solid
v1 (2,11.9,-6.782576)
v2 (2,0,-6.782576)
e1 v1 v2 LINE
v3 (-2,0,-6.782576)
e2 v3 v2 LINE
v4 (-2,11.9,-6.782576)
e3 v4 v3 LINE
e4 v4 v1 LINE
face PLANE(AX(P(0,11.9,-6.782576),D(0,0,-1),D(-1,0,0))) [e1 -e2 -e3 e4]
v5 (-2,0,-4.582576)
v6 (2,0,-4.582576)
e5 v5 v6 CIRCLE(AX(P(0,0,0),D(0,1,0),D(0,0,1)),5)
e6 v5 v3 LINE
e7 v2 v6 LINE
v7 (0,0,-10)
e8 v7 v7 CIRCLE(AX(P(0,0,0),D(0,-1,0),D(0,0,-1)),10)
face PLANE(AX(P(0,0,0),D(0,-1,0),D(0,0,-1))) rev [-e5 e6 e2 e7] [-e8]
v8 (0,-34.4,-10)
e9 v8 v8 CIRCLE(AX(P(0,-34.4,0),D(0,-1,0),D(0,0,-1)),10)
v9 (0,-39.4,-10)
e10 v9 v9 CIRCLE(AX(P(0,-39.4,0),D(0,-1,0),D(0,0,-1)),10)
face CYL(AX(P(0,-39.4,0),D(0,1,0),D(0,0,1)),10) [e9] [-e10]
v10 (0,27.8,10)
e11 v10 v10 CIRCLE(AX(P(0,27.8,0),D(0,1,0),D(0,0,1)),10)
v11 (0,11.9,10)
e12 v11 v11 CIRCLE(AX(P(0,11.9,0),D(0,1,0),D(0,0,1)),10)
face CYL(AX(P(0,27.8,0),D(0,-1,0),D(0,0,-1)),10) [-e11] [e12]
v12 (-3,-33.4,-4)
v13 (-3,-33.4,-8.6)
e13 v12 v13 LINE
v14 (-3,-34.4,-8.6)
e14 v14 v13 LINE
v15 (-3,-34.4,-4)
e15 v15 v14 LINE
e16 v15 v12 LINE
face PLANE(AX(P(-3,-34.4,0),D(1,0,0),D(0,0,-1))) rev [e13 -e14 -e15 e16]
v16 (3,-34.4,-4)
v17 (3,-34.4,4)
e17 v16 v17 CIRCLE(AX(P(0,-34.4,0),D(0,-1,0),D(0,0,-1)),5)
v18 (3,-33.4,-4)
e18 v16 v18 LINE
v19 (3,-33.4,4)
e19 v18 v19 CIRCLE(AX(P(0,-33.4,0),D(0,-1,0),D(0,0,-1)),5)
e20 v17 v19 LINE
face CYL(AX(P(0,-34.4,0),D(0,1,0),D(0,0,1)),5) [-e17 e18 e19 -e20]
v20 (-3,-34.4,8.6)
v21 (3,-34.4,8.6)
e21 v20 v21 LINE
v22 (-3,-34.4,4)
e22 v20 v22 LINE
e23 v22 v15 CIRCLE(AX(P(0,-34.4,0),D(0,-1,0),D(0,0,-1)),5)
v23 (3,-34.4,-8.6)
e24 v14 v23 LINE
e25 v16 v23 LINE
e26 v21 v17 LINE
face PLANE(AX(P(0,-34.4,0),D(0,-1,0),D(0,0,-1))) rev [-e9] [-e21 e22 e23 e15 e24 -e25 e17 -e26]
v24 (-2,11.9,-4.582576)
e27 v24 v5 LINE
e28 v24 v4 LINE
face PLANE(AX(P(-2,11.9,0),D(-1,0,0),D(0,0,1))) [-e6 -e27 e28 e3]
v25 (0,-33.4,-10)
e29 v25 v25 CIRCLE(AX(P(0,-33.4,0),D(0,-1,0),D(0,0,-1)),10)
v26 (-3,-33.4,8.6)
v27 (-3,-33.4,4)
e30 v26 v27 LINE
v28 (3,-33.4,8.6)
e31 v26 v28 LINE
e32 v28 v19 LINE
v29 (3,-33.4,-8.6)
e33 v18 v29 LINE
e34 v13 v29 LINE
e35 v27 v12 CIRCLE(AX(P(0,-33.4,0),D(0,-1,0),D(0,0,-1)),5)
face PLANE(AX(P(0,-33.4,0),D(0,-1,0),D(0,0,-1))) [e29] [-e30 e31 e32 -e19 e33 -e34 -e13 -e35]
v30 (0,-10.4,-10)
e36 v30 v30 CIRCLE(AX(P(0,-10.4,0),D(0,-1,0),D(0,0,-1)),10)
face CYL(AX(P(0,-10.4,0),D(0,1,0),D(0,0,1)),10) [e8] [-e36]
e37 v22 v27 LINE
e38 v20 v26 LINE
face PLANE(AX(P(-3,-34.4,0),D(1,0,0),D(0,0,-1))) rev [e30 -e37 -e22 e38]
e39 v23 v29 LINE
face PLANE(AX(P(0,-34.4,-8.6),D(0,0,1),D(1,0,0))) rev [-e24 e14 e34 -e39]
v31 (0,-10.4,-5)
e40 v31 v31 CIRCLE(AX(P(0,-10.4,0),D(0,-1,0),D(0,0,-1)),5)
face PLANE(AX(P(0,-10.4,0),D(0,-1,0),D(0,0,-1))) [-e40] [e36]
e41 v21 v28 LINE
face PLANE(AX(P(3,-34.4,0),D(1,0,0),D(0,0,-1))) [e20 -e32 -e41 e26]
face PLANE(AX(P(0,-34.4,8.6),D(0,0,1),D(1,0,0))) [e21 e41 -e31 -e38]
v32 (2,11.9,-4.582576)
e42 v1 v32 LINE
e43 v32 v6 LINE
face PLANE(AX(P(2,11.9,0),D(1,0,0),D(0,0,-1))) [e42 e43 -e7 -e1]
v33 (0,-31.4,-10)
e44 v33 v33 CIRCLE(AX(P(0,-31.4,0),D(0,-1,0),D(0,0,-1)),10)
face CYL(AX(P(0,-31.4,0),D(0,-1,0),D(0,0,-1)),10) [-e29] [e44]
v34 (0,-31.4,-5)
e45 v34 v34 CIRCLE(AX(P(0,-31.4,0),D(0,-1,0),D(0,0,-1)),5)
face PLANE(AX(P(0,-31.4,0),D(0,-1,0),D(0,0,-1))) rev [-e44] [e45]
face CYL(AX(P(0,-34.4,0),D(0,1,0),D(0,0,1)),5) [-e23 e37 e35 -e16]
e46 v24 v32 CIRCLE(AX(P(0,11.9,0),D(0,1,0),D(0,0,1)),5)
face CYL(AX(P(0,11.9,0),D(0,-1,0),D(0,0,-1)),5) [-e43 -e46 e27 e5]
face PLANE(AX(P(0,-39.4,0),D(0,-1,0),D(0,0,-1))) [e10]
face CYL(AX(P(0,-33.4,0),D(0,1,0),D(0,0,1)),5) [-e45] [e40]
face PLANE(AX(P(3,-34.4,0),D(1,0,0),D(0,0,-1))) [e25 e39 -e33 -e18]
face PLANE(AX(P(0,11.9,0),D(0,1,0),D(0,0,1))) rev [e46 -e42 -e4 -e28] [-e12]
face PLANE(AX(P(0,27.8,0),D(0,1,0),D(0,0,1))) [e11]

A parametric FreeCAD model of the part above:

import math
import FreeCAD as App
import Part
import Sketcher

doc = App.newDocument("Part")
params = doc.addObject("Spreadsheet::Sheet", "Params")
for row, (alias, value) in enumerate([
    ("sketch1_radius", "5 mm"),
    ("sketch1_width", "4 mm"),
    ("sketch1_height", "2.2 mm"),
    ("pad1_length", "11.9 mm"),
    ("sketch2_diameter", "20 mm"),
    ("pad2_length", "15.9 mm"),
    ("sketch3_diameter", "20 mm"),
    ("pad3_length", "10.4 mm"),
    ("sketch4_diameter", "10 mm"),
    ("pad4_length", "23 mm"),
    ("sketch5_diameter", "20 mm"),
    ("sketch5_diameter2", "10 mm"),
    ("pad5_length", "2 mm"),
    ("sketch6_radius", "5 mm"),
    ("sketch6_width", "6 mm"),
    ("sketch6_height", "4.6 mm"),
    ("pad6_length", "1 mm"),
    ("sketch7_diameter", "20 mm"),
    ("pad7_length", "5 mm"),
], start=1):
    params.set(f"A{row}", alias)
    params.set(f"B{row}", "=" + value)
    params.setAlias(f"B{row}", alias)

body = doc.addObject("PartDesign::Body", "Body")

# Sketch on XZ plane
sketch1 = body.newObject("Sketcher::SketchObject", "Sketch")
sketch1.AttachmentSupport = (doc.getObject("XZ_Plane"), [""])
sketch1.MapMode = "FlatFace"
sketch1.addGeometry([
    Part.LineSegment(App.Vector(2, -4.582576, 0), App.Vector(2, -6.782576, 0)),
    Part.LineSegment(App.Vector(2, -6.782576, 0), App.Vector(-2, -6.782576, 0)),
    Part.LineSegment(App.Vector(-2, -6.782576, 0), App.Vector(-2, -4.582576, 0)),
    Part.ArcOfCircle(Part.Circle(App.Vector(0, 0, 0), App.Vector(0, 0, 1), 5), math.radians(-66.421822), math.radians(246.421822)),
], False)
sketch1.addConstraint([
    Sketcher.Constraint("Coincident", 0, 2, 1, 1),
    Sketcher.Constraint("Coincident", 1, 2, 2, 1),
    Sketcher.Constraint("Coincident", 2, 2, 3, 2),
    Sketcher.Constraint("Coincident", 3, 1, 0, 1),
    Sketcher.Constraint("Vertical", 0),
    Sketcher.Constraint("Horizontal", 1),
    Sketcher.Constraint("Vertical", 2),
    Sketcher.Constraint("Coincident", 3, 3, -1, 1),
    Sketcher.Constraint("Horizontal", 2, 2, 3, 1),
    Sketcher.Constraint("Radius", 3, 5.0),
    Sketcher.Constraint("DistanceX", 1, 2, 1, 1, 4.0),
    Sketcher.Constraint("DistanceY", 0, 2, 0, 1, 2.2),
])
sketch1.setExpression("Constraints[9]", "Params.sketch1_radius")
sketch1.setExpression("Constraints[10]", "Params.sketch1_width")
sketch1.setExpression("Constraints[11]", "Params.sketch1_height")
pad1 = body.newObject("PartDesign::Pad", "Pad")
pad1.Profile = sketch1
pad1.setExpression("Length", "Params.pad1_length")
pad1.Reversed = True

# Sketch on XZ plane
sketch2 = body.newObject("Sketcher::SketchObject", "Sketch001")
sketch2.AttachmentSupport = (doc.getObject("XZ_Plane"), [""])
sketch2.MapMode = "FlatFace"
sketch2.AttachmentOffset = App.Placement(App.Vector(0, 0, -11.9), App.Rotation())
sketch2.addGeometry(Part.Circle(App.Vector(0, 0, 0), App.Vector(0, 0, 1), 10), False)
sketch2.addConstraint([
    Sketcher.Constraint("Coincident", 0, 3, -1, 1),
    Sketcher.Constraint("Diameter", 0, 20.0),
])
sketch2.setExpression("Constraints[1]", "Params.sketch2_diameter")
pad2 = body.newObject("PartDesign::Pad", "Pad001")
pad2.Profile = sketch2
pad2.setExpression("Length", "Params.pad2_length")
pad2.Reversed = True

# Sketch on XZ plane
sketch3 = body.newObject("Sketcher::SketchObject", "Sketch002")
sketch3.AttachmentSupport = (doc.getObject("XZ_Plane"), [""])
sketch3.MapMode = "FlatFace"
sketch3.AttachmentOffset = App.Placement(App.Vector(0, 0, 10.4), App.Rotation())
sketch3.addGeometry(Part.Circle(App.Vector(0, 0, 0), App.Vector(0, 0, 1), 10), False)
sketch3.addConstraint([
    Sketcher.Constraint("Coincident", 0, 3, -1, 1),
    Sketcher.Constraint("Diameter", 0, 20.0),
])
sketch3.setExpression("Constraints[1]", "Params.sketch3_diameter")
pad3 = body.newObject("PartDesign::Pad", "Pad002")
pad3.Profile = sketch3
pad3.setExpression("Length", "Params.pad3_length")
pad3.Reversed = True

# Sketch on XZ plane
sketch4 = body.newObject("Sketcher::SketchObject", "Sketch003")
sketch4.AttachmentSupport = (doc.getObject("XZ_Plane"), [""])
sketch4.MapMode = "FlatFace"
sketch4.AttachmentOffset = App.Placement(App.Vector(0, 0, 33.4), App.Rotation())
sketch4.addGeometry(Part.Circle(App.Vector(0, 0, 0), App.Vector(0, 0, 1), 5), False)
sketch4.addConstraint([
    Sketcher.Constraint("Coincident", 0, 3, -1, 1),
    Sketcher.Constraint("Diameter", 0, 10.0),
])
sketch4.setExpression("Constraints[1]", "Params.sketch4_diameter")
pad4 = body.newObject("PartDesign::Pad", "Pad003")
pad4.Profile = sketch4
pad4.setExpression("Length", "Params.pad4_length")
pad4.Reversed = True

# Sketch on XZ plane
sketch5 = body.newObject("Sketcher::SketchObject", "Sketch004")
sketch5.AttachmentSupport = (doc.getObject("XZ_Plane"), [""])
sketch5.MapMode = "FlatFace"
sketch5.AttachmentOffset = App.Placement(App.Vector(0, 0, 33.4), App.Rotation())
sketch5.addGeometry([
    Part.Circle(App.Vector(0, 0, 0), App.Vector(0, 0, 1), 10),
    Part.Circle(App.Vector(0, 0, 0), App.Vector(0, 0, 1), 5),
], False)
sketch5.addConstraint([
    Sketcher.Constraint("Coincident", 0, 3, -1, 1),
    Sketcher.Constraint("Coincident", 1, 3, -1, 1),
    Sketcher.Constraint("Diameter", 0, 20.0),
    Sketcher.Constraint("Diameter", 1, 10.0),
])
sketch5.setExpression("Constraints[2]", "Params.sketch5_diameter")
sketch5.setExpression("Constraints[3]", "Params.sketch5_diameter2")
pad5 = body.newObject("PartDesign::Pad", "Pad004")
pad5.Profile = sketch5
pad5.setExpression("Length", "Params.pad5_length")
pad5.Reversed = True

# Sketch on XZ plane
sketch6 = body.newObject("Sketcher::SketchObject", "Sketch005")
sketch6.AttachmentSupport = (doc.getObject("XZ_Plane"), [""])
sketch6.MapMode = "FlatFace"
sketch6.AttachmentOffset = App.Placement(App.Vector(0, 0, 34.4), App.Rotation())
sketch6.addGeometry([
    Part.LineSegment(App.Vector(3, 4, 0), App.Vector(3, 8.6, 0)),  # 0
    Part.LineSegment(App.Vector(3, 8.6, 0), App.Vector(-3, 8.6, 0)),  # 1
    Part.LineSegment(App.Vector(-3, 8.6, 0), App.Vector(-3, 4, 0)),  # 2
    Part.ArcOfCircle(Part.Circle(App.Vector(0, 0, 0), App.Vector(0, 0, 1), 5), math.radians(126.869898), math.radians(233.130102)),  # 3
    Part.LineSegment(App.Vector(-3, -4, 0), App.Vector(-3, -8.6, 0)),  # 4
    Part.LineSegment(App.Vector(-3, -8.6, 0), App.Vector(3, -8.6, 0)),  # 5
    Part.LineSegment(App.Vector(3, -8.6, 0), App.Vector(3, -4, 0)),  # 6
    Part.ArcOfCircle(Part.Circle(App.Vector(0, 0, 0), App.Vector(0, 0, 1), 5), math.radians(-53.130102), math.radians(53.130102)),  # 7
], False)
sketch6.addConstraint([
    Sketcher.Constraint("Coincident", 0, 2, 1, 1),
    Sketcher.Constraint("Coincident", 1, 2, 2, 1),
    Sketcher.Constraint("Coincident", 2, 2, 3, 1),
    Sketcher.Constraint("Coincident", 3, 2, 4, 1),
    Sketcher.Constraint("Coincident", 4, 2, 5, 1),
    Sketcher.Constraint("Coincident", 5, 2, 6, 1),
    Sketcher.Constraint("Coincident", 6, 2, 7, 1),
    Sketcher.Constraint("Coincident", 7, 2, 0, 1),
    Sketcher.Constraint("Vertical", 0),
    Sketcher.Constraint("Horizontal", 1),
    Sketcher.Constraint("Vertical", 2),
    Sketcher.Constraint("Vertical", 4),
    Sketcher.Constraint("Horizontal", 5),
    Sketcher.Constraint("Vertical", 6),
    Sketcher.Constraint("Coincident", 3, 3, -1, 1),
    Sketcher.Constraint("Coincident", 7, 3, -1, 1),
    Sketcher.Constraint("Equal", 3, 7),
    Sketcher.Constraint("Symmetric", 0, 2, 4, 2, -1, 1),
    Sketcher.Constraint("Horizontal", 3, 2, 6, 2),
    Sketcher.Constraint("Horizontal", 2, 2, 7, 2),
    Sketcher.Constraint("Radius", 3, 5.0),
    Sketcher.Constraint("DistanceX", 1, 2, 1, 1, 6.0),
    Sketcher.Constraint("DistanceY", 0, 1, 0, 2, 4.6),
])
sketch6.setExpression("Constraints[20]", "Params.sketch6_radius")
sketch6.setExpression("Constraints[21]", "Params.sketch6_width")
sketch6.setExpression("Constraints[22]", "Params.sketch6_height")
pad6 = body.newObject("PartDesign::Pad", "Pad005")
pad6.Profile = sketch6
pad6.setExpression("Length", "Params.pad6_length")
pad6.Reversed = True

# Sketch on XZ plane
sketch7 = body.newObject("Sketcher::SketchObject", "Sketch006")
sketch7.AttachmentSupport = (doc.getObject("XZ_Plane"), [""])
sketch7.MapMode = "FlatFace"
sketch7.AttachmentOffset = App.Placement(App.Vector(0, 0, 39.4), App.Rotation())
sketch7.addGeometry(Part.Circle(App.Vector(0, 0, 0), App.Vector(0, 0, 1), 10), False)
sketch7.addConstraint([
    Sketcher.Constraint("Coincident", 0, 3, -1, 1),
    Sketcher.Constraint("Diameter", 0, 20.0),
])
sketch7.setExpression("Constraints[1]", "Params.sketch7_diameter")
pad7 = body.newObject("PartDesign::Pad", "Pad006")
pad7.Profile = sketch7
pad7.setExpression("Length", "Params.pad7_length")
pad7.Reversed = True

doc.recompute()
